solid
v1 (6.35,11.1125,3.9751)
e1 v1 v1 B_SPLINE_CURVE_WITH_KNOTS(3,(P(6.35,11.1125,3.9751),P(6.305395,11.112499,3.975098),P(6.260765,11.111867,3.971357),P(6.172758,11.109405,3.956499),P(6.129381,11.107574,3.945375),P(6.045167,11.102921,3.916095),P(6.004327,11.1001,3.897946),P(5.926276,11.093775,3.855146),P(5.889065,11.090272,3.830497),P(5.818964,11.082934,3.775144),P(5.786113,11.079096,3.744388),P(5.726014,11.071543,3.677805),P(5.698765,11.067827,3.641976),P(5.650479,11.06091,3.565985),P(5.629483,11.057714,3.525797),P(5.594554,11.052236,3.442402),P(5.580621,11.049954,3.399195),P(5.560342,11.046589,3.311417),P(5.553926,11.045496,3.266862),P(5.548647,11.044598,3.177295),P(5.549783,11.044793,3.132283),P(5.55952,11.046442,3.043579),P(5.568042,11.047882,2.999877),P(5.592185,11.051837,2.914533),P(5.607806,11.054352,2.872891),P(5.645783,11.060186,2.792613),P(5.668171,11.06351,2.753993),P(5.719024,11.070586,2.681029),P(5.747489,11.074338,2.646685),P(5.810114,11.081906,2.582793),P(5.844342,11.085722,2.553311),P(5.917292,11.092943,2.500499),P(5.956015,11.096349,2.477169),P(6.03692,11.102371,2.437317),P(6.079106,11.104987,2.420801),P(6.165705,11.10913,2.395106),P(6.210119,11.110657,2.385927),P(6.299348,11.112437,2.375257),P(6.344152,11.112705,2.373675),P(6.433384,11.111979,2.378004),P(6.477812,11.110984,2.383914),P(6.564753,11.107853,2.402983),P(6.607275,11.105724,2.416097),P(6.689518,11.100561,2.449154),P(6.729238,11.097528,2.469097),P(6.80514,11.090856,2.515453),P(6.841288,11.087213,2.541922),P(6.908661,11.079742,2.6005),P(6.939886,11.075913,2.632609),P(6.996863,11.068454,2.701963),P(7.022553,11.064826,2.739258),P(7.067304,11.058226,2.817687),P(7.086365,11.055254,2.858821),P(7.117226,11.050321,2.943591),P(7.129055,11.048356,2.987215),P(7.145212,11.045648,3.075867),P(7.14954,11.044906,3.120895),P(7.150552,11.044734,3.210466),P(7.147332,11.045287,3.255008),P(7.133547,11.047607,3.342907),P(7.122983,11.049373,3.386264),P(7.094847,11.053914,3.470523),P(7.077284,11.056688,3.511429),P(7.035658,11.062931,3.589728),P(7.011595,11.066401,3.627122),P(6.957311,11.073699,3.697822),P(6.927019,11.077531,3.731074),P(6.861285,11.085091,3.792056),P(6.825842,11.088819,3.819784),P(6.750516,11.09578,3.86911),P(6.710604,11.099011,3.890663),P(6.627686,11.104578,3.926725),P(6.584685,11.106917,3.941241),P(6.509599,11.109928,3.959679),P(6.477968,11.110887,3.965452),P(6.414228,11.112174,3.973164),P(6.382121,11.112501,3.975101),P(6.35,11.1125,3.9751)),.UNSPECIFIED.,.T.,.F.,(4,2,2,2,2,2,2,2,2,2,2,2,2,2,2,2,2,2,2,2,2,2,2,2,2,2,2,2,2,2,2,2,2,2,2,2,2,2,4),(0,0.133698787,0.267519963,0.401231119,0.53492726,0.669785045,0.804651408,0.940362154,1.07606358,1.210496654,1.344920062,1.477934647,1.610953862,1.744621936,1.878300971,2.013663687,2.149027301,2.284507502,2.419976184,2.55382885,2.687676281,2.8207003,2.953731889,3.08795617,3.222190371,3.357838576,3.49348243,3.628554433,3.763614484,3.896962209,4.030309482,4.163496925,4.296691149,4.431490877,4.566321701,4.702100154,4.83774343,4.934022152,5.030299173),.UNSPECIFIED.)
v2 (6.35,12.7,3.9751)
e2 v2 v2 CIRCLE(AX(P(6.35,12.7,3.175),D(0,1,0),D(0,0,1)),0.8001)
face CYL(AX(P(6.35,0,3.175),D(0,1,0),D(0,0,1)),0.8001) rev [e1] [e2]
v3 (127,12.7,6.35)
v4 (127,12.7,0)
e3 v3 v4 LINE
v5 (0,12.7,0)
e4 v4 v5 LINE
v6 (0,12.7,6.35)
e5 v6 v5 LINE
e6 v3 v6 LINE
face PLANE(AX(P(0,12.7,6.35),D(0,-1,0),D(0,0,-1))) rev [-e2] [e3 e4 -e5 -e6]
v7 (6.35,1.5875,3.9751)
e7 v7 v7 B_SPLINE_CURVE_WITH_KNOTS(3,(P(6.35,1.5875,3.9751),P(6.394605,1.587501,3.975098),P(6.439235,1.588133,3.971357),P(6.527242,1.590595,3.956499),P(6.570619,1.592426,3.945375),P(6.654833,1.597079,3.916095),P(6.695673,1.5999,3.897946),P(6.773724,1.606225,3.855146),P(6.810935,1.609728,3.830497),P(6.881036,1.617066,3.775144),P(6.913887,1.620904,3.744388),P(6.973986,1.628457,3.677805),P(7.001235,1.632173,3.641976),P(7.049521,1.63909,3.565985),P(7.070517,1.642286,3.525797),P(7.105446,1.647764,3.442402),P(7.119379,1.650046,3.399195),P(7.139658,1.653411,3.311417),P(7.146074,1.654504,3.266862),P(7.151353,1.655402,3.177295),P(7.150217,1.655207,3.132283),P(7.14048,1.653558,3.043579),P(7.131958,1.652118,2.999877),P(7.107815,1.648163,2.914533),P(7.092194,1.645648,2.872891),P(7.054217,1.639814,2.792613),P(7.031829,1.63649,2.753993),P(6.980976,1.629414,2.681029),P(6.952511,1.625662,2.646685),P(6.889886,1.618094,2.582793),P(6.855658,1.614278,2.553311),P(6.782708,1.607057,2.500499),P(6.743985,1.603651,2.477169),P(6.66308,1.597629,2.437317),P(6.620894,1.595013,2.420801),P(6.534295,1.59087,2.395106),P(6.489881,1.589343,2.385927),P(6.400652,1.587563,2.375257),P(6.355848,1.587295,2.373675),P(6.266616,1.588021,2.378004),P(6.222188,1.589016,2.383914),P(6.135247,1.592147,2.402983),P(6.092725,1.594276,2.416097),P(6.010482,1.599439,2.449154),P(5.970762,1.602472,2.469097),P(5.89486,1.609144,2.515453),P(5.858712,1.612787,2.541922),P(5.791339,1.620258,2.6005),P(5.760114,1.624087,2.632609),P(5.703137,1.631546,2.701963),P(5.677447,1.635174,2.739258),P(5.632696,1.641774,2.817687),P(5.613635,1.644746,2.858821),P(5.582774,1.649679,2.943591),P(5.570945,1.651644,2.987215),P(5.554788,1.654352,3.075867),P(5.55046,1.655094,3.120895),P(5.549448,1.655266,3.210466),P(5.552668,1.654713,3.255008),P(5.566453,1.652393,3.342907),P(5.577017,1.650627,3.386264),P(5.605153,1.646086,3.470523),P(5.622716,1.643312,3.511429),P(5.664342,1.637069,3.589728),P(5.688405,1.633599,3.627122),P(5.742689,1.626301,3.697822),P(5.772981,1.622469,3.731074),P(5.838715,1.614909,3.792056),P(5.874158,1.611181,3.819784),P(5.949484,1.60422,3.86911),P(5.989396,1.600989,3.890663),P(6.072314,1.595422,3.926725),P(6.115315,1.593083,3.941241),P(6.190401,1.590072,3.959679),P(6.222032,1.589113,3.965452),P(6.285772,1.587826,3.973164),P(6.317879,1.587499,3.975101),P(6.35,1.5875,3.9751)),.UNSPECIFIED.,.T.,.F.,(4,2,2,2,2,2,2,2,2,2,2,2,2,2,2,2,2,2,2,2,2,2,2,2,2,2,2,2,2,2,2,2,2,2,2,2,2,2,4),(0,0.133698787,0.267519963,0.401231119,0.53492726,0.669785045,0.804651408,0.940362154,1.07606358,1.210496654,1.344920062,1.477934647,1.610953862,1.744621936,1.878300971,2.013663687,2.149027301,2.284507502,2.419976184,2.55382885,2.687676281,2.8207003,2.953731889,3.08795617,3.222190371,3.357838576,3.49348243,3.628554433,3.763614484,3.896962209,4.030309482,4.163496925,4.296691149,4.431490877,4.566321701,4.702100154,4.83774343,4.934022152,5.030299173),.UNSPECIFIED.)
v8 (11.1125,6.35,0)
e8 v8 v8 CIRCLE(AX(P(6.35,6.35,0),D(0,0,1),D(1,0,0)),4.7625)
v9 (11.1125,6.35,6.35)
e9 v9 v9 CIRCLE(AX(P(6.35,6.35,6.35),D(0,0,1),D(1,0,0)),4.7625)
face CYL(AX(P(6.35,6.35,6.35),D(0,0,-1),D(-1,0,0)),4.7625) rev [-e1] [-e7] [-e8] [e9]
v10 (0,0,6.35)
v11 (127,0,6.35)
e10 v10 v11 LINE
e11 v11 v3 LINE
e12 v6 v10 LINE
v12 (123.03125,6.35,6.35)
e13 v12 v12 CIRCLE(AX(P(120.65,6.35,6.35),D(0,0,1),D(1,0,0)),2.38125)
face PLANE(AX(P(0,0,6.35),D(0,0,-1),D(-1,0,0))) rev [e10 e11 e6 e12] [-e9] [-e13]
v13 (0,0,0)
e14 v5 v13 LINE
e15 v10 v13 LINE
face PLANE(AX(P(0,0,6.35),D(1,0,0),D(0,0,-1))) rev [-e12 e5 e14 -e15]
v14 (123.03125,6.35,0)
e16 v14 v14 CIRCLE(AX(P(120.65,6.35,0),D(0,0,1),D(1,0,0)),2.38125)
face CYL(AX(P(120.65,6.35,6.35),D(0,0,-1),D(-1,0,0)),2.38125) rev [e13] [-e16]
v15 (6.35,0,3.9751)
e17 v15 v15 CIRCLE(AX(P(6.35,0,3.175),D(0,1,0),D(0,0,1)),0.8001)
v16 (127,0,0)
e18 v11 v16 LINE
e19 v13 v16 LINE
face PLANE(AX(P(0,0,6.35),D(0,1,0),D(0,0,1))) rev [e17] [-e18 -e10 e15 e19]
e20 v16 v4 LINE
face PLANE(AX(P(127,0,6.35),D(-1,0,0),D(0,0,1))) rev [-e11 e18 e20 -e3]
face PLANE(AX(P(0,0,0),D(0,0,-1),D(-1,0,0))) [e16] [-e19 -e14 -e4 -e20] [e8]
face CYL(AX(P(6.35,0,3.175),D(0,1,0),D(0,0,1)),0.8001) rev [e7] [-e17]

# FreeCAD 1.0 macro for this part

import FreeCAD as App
import Part
import Sketcher
Q = App.Units.Quantity


def add_polygon(sketch, points):
    """Adds a closed chain of lines whose ends are joined by coincident constraints."""
    first, n = sketch.GeometryCount, len(points)
    for a, b in zip(points, points[1:] + points[:1]):
        sketch.addGeometry(Part.LineSegment(App.Vector(*a, 0), App.Vector(*b, 0)), False)
    for i in range(n):
        sketch.addConstraint(Sketcher.Constraint("Coincident", first + i, 2, first + (i + 1) % n, 1))

doc = App.newDocument("Part")
body = doc.addObject("PartDesign::Body", "Body")

# Sketch on XY plane
sketch1 = body.newObject("Sketcher::SketchObject", "Sketch")
sketch1.AttachmentSupport = (doc.getObject("XY_Plane"), [""])
sketch1.MapMode = "FlatFace"
add_polygon(sketch1, [(0, 12.7), (0, 0), (127, 0), (127, 12.7)])  # lines 0-3
sketch1.addGeometry(Part.Circle(App.Vector(6.3, 6.3, 0), App.Vector(0, 0, 1), 4.8), False)  # 4
sketch1.addGeometry(Part.Circle(App.Vector(120.7, 6.3, 0), App.Vector(0, 0, 1), 2.4), False)  # 5
sketch1.addConstraint([
    Sketcher.Constraint("Vertical", 0),
    Sketcher.Constraint("Horizontal", 1),
    Sketcher.Constraint("Vertical", 2),
    Sketcher.Constraint("Horizontal", 3),
    Sketcher.Constraint("Coincident", 0, 2, -1, 1),
    Sketcher.Constraint("Horizontal", 4, 3, 5, 3),
    Sketcher.Constraint("DistanceX", 1, 1, 1, 2, Q("5 in")),
    Sketcher.Constraint("Diameter", 4, Q("0.375 in")),
    Sketcher.Constraint("Diameter", 5, Q("0.1875 in")),
    Sketcher.Constraint("DistanceY", 0, 2, 0, 1, Q("0.5 in")),
    Sketcher.Constraint("DistanceX", 4, 3, 5, 3, Q("4.5 in")),
    Sketcher.Constraint("DistanceX", -1, 1, 4, 3, Q("0.25 in")),
    Sketcher.Constraint("DistanceY", -1, 1, 4, 3, Q("0.25 in")),
])
pad1 = body.newObject("PartDesign::Pad", "Pad")
pad1.Profile = sketch1
pad1.Length = Q("0.25 in")

# Sketch on XZ plane
sketch2 = body.newObject("Sketcher::SketchObject", "Sketch001")
sketch2.AttachmentSupport = (doc.getObject("XZ_Plane"), [""])
sketch2.MapMode = "FlatFace"
sketch2.AttachmentOffset = App.Placement(App.Vector(0, 0, -0.5 * 25.4), App.Rotation())
sketch2.addGeometry(Part.Circle(App.Vector(6.3, 3.2, 0), App.Vector(0, 0, 1), 0.8), False)
sketch2.addConstraint([
    Sketcher.Constraint("Diameter", 0, Q("0.063 in")),
    Sketcher.Constraint("DistanceX", -1, 1, 0, 3, Q("0.25 in")),
    Sketcher.Constraint("DistanceY", -1, 1, 0, 3, Q("0.125 in")),
])
pocket1 = body.newObject("PartDesign::Pocket", "Pocket")
pocket1.Profile = sketch2
pocket1.Length = Q("0.5 in")
pocket1.Reversed = True

doc.recompute()
